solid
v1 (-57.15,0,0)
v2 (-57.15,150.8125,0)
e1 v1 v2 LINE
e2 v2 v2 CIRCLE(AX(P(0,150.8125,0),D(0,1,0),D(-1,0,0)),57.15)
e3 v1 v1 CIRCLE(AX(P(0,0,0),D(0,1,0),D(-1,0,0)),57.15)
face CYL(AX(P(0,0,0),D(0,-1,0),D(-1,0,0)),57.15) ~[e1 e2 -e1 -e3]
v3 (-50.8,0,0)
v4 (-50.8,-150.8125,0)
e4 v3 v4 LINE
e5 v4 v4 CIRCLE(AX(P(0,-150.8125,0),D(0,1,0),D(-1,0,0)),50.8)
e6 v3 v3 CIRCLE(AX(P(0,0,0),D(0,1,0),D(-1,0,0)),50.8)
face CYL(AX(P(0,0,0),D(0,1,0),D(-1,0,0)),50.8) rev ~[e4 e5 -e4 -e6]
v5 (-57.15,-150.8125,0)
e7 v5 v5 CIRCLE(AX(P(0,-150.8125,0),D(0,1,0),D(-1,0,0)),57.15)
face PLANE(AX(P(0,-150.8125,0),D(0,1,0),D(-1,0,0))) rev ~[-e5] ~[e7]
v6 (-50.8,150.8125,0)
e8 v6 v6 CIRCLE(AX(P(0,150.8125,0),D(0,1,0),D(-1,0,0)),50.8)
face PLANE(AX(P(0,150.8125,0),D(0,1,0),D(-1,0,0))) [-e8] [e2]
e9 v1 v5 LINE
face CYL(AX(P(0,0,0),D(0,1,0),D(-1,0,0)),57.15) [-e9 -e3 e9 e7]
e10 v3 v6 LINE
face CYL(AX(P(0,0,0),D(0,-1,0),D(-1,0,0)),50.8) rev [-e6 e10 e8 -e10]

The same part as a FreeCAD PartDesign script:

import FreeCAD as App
import Part
import Sketcher

V = App.Vector
Q = App.Units.Quantity

doc = App.newDocument("Part")
body = doc.addObject("PartDesign::Body", "Body")

sketch1 = body.newObject("Sketcher::SketchObject", "Sketch")
sketch1.AttachmentSupport = (doc.getObject("XZ_Plane"), [""])
sketch1.MapMode = "FlatFace"
sketch1.addGeometry([
    Part.Circle(V(0, 0, 0), V(0, 0, 1), 57),
    Part.Circle(V(0, 0, 0), V(0, 0, 1), 51),
], False)
sketch1.addConstraint([
    Sketcher.Constraint("Coincident", 0, 3, -1, 1),
    Sketcher.Constraint("Coincident", 1, 3, -1, 1),
    Sketcher.Constraint("Diameter", 1, Q("4 in")),
    Sketcher.Constraint("Diameter", 0, Q("4.5 in")),
])
pad1 = body.newObject("PartDesign::Pad", "Pad")
pad1.Profile = sketch1
pad1.Length = Q("11.875 in")
pad1.Midplane = True

doc.recompute()
